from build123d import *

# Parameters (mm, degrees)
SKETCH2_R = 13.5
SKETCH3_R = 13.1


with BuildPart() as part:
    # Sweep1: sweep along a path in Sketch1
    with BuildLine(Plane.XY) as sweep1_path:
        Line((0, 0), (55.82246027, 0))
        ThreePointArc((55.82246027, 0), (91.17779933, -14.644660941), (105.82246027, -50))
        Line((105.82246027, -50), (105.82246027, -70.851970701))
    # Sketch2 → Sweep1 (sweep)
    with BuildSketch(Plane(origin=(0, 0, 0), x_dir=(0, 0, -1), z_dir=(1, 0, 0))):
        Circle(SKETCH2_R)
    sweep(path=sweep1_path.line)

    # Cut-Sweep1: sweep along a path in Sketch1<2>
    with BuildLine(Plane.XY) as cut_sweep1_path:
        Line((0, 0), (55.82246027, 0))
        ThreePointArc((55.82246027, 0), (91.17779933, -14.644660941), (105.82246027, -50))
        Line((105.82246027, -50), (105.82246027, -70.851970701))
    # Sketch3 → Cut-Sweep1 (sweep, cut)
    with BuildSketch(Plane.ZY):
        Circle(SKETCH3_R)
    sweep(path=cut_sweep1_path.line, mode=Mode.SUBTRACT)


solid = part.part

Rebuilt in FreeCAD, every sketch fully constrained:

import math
import FreeCAD as App
import Part
import Sketcher
from FreeCAD import Vector
Q = App.Units.Quantity

doc = App.newDocument("Part")
params = doc.addObject("Spreadsheet::Sheet", "Params")
for row, (alias, value) in enumerate([
    ("sketch1_diameter", "27 mm"),
    ("sketch2_radius", "50 mm"),
    ("sketch3_diameter", "26.2 mm"),
    ("sketch4_radius", "50 mm"),
], start=1):
    params.set(f"A{row}", alias)
    params.set(f"B{row}", "=" + value)
    params.setAlias(f"B{row}", alias)

body = doc.addObject("PartDesign::Body", "Body")

# Sketch on YZ plane
sketch1 = doc.addObject("Sketcher::SketchObject", "Sketch")
body.addObject(sketch1)
sketch1.AttachmentSupport = (doc.YZ_Plane, [""])
sketch1.MapMode = "FlatFace"
sketch1.addGeometry(Part.Circle(Vector(0, 0, 0), Vector(0, 0, 1), 13.5), False)
sketch1.addConstraint(Sketcher.Constraint("Coincident", 0, 3, -1, 1))
sketch1.addConstraint(Sketcher.Constraint("Diameter", 0, Q("27 mm")))
sketch1.setExpression("Constraints[1]", "Params.sketch1_diameter")

# Sketch on XY plane
sketch2 = doc.addObject("Sketcher::SketchObject", "Sketch001")
body.addObject(sketch2)
sketch2.AttachmentSupport = (doc.XY_Plane, [""])
sketch2.MapMode = "FlatFace"
sketch2.addGeometry(Part.LineSegment(Vector(0, 0, 0), Vector(55.82246, 0, 0)), False)
sketch2.addGeometry(Part.ArcOfCircle(Part.Circle(Vector(55.82246, -50, 0), Vector(0, 0, 1), 50), math.radians(0), math.radians(90)), False)
sketch2.addGeometry(Part.LineSegment(Vector(105.82246, -50, 0), Vector(105.82246, -70.851971, 0)), False)
sketch2.addConstraint(Sketcher.Constraint("Tangent", 0, 2, 1, 2))
sketch2.addConstraint(Sketcher.Constraint("Tangent", 1, 1, 2, 1))
sketch2.addConstraint(Sketcher.Constraint("Horizontal", 0))
sketch2.addConstraint(Sketcher.Constraint("Vertical", 2))
sketch2.addConstraint(Sketcher.Constraint("Coincident", 0, 1, -1, 1))
sketch2.addConstraint(Sketcher.Constraint("Radius", 1, Q("50 mm")))
sketch2.addConstraint(Sketcher.Constraint("DistanceX", 0, 1, 0, 2, Q("55.82246 mm")))
sketch2.addConstraint(Sketcher.Constraint("DistanceY", 2, 2, 2, 1, Q("20.851971 mm")))
sketch2.setExpression("Constraints[5]", "Params.sketch2_radius")
doc.recompute()

additivepipe = doc.addObject("PartDesign::AdditivePipe", "AdditivePipe")
body.addObject(additivepipe)
additivepipe.Profile = sketch1
additivepipe.Spine = (sketch2, ["Edge1", "Edge2", "Edge3"])

# Sketch on YZ plane
sketch3 = doc.addObject("Sketcher::SketchObject", "Sketch002")
body.addObject(sketch3)
sketch3.AttachmentSupport = (doc.YZ_Plane, [""])
sketch3.MapMode = "FlatFace"
sketch3.addGeometry(Part.Circle(Vector(0, 0, 0), Vector(0, 0, 1), 13.1), False)
sketch3.addConstraint(Sketcher.Constraint("Coincident", 0, 3, -1, 1))
sketch3.addConstraint(Sketcher.Constraint("Diameter", 0, Q("26.2 mm")))
sketch3.setExpression("Constraints[1]", "Params.sketch3_diameter")

# Sketch on XY plane
sketch4 = doc.addObject("Sketcher::SketchObject", "Sketch003")
body.addObject(sketch4)
sketch4.AttachmentSupport = (doc.XY_Plane, [""])
sketch4.MapMode = "FlatFace"
sketch4.addGeometry(Part.LineSegment(Vector(0, 0, 0), Vector(55.82246, 0, 0)), False)
sketch4.addGeometry(Part.ArcOfCircle(Part.Circle(Vector(55.82246, -50, 0), Vector(0, 0, 1), 50), math.radians(0), math.radians(90)), False)
sketch4.addGeometry(Part.LineSegment(Vector(105.82246, -50, 0), Vector(105.82246, -70.851971, 0)), False)
sketch4.addConstraint(Sketcher.Constraint("Tangent", 0, 2, 1, 2))
sketch4.addConstraint(Sketcher.Constraint("Tangent", 1, 1, 2, 1))
sketch4.addConstraint(Sketcher.Constraint("Horizontal", 0))
sketch4.addConstraint(Sketcher.Constraint("Vertical", 2))
sketch4.addConstraint(Sketcher.Constraint("Coincident", 0, 1, -1, 1))
sketch4.addConstraint(Sketcher.Constraint("Radius", 1, Q("50 mm")))
sketch4.addConstraint(Sketcher.Constraint("DistanceX", 0, 1, 0, 2, Q("55.82246 mm")))
sketch4.addConstraint(Sketcher.Constraint("DistanceY", 2, 2, 2, 1, Q("20.851971 mm")))
sketch4.setExpression("Constraints[5]", "Params.sketch4_radius")
doc.recompute()

subtractivepipe = doc.addObject("PartDesign::SubtractivePipe", "SubtractivePipe")
body.addObject(subtractivepipe)
subtractivepipe.Profile = sketch3
subtractivepipe.Spine = (sketch4, ["Edge1", "Edge2", "Edge3"])

doc.recompute()
